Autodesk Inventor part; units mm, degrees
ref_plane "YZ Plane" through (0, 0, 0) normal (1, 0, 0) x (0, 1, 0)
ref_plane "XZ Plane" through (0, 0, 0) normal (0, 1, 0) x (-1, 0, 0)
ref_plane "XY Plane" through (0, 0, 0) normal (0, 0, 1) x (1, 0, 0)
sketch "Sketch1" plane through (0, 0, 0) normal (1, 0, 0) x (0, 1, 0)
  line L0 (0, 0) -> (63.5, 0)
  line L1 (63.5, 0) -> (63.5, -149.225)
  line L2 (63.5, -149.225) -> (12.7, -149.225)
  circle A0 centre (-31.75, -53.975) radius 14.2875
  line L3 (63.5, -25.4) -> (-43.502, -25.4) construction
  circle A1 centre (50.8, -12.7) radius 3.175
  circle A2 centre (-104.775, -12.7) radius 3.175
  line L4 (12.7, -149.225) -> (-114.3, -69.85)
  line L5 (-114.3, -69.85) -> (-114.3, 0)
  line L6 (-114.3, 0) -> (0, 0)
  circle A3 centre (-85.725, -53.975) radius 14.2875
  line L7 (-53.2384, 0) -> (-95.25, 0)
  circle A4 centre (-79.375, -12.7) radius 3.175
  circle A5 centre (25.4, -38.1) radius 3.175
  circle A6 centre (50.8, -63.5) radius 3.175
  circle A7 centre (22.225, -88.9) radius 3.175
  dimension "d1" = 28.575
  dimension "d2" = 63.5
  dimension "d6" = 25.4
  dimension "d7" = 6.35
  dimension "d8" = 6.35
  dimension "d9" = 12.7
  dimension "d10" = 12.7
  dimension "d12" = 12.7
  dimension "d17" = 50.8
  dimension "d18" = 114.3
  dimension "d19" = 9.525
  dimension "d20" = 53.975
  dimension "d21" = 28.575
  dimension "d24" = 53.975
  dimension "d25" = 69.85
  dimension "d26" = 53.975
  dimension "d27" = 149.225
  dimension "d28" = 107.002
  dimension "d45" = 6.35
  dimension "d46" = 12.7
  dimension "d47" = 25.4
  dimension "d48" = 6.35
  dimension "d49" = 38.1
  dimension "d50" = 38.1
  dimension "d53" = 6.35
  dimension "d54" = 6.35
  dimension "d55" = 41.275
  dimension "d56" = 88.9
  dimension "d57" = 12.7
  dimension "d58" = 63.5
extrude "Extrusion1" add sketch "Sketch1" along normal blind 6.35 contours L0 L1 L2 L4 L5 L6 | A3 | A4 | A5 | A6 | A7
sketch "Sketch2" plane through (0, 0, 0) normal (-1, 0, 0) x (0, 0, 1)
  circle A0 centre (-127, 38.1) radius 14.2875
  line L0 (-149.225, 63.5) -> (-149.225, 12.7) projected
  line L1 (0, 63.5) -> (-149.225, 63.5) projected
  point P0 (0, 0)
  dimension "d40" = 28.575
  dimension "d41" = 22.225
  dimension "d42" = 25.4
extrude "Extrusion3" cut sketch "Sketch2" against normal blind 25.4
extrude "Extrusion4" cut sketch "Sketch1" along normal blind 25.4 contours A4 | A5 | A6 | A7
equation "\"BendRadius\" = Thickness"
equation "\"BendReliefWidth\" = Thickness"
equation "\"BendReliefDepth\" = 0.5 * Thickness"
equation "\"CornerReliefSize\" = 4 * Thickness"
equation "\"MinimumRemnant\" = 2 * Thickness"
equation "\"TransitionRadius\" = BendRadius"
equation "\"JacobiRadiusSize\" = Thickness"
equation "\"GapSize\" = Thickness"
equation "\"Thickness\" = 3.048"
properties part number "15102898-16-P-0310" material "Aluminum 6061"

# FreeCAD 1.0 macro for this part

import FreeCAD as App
import Part
import Sketcher

V = App.Vector
Q = App.Units.Quantity


def add_polygon(sketch, points):
    """Adds a closed chain of lines whose ends are joined by coincident constraints."""
    first, n = sketch.GeometryCount, len(points)
    for a, b in zip(points, points[1:] + points[:1]):
        sketch.addGeometry(Part.LineSegment(App.Vector(*a, 0), App.Vector(*b, 0)), False)
    for i in range(n):
        sketch.addConstraint(Sketcher.Constraint("Coincident", first + i, 2, first + (i + 1) % n, 1))

doc = App.newDocument("Part")
body = doc.addObject("PartDesign::Body", "Body")

# Sketch on YZ plane
sketch1 = body.newObject("Sketcher::SketchObject", "Sketch")
sketch1.AttachmentSupport = (doc.getObject("YZ_Plane"), [""])
sketch1.MapMode = "FlatFace"
add_polygon(sketch1, [(63.5, 0), (-114.3, 0), (-114.3, -69.8), (12.7, -149.2), (63.5, -149.2)])  # lines 0-4
sketch1.addGeometry(Part.Circle(V(-31.8, -54, 0), V(0, 0, 1), 14.3), False)  # 5
sketch1.addGeometry(Part.Circle(V(-104.8, -12.7, 0), V(0, 0, 1), 3.2), False)  # 6
sketch1.addGeometry(Part.Circle(V(50.8, -12.7, 0), V(0, 0, 1), 3.2), False)  # 7
sketch1.addConstraint(Sketcher.Constraint("Horizontal", 0))
sketch1.addConstraint(Sketcher.Constraint("Vertical", 1))
sketch1.addConstraint(Sketcher.Constraint("Horizontal", 3))
sketch1.addConstraint(Sketcher.Constraint("Vertical", 4))
sketch1.addConstraint(Sketcher.Constraint("Equal", 6, 7))
sketch1.addConstraint(Sketcher.Constraint("PointOnObject", 0, 2, -1))
sketch1.addConstraint(Sketcher.Constraint("Horizontal", 6, 3, 7, 3))
sketch1.addConstraint(Sketcher.Constraint("Diameter", 6, Q("0.25 in")))
sketch1.addConstraint(Sketcher.Constraint("DistanceX", 3, 1, 3, 2, Q("2 in")))
sketch1.addConstraint(Sketcher.Constraint("Diameter", 5, Q("1.125 in")))
sketch1.addConstraint(Sketcher.Constraint("DistanceX", -1, 1, 7, 3, Q("2 in")))
sketch1.addConstraint(Sketcher.Constraint("DistanceY", 1, 2, 1, 1, Q("2.75 in")))
sketch1.addConstraint(Sketcher.Constraint("DistanceY", 6, 3, -1, 1, Q("0.5 in")))
sketch1.addConstraint(Sketcher.Constraint("DistanceX", 0, 2, -1, 1, Q("4.5 in")))
sketch1.addConstraint(Sketcher.Constraint("DistanceX", -1, 1, 2, 2, Q("0.5 in")))
sketch1.addConstraint(Sketcher.Constraint("DistanceY", 4, 1, 4, 2, Q("5.875 in")))
sketch1.addConstraint(Sketcher.Constraint("DistanceY", 5, 3, -1, 1, Q("2.125 in")))
sketch1.addConstraint(Sketcher.Constraint("DistanceX", 0, 2, 6, 3, Q("0.375 in")))
sketch1.addConstraint(Sketcher.Constraint("DistanceX", 5, 3, -1, 1, Q("1.25 in")))
pad1 = body.newObject("PartDesign::Pad", "Pad")
pad1.Profile = sketch1
pad1.Length = Q("0.25 in")

# Sketch on YZ plane
sketch2 = body.newObject("Sketcher::SketchObject", "Sketch001")
sketch2.AttachmentSupport = (doc.getObject("YZ_Plane"), [""])
sketch2.MapMode = "FlatFace"
sketch2.addGeometry(Part.Circle(V(38, -127, 0), V(0, 0, 1), 14), False)
sketch2.addConstraint(Sketcher.Constraint("Diameter", 0, Q("1.125 in")))
sketch2.addConstraint(Sketcher.Constraint("DistanceY", 0, 3, -1, 1, Q("5 in")))
sketch2.addConstraint(Sketcher.Constraint("DistanceX", -1, 1, 0, 3, Q("1.5 in")))
pocket1 = body.newObject("PartDesign::Pocket", "Pocket")
pocket1.Profile = sketch2
pocket1.Length = Q("1 in")
pocket1.Reversed = True

# Sketch on YZ plane
sketch3 = body.newObject("Sketcher::SketchObject", "Sketch002")
sketch3.AttachmentSupport = (doc.getObject("YZ_Plane"), [""])
sketch3.MapMode = "FlatFace"
sketch3.addGeometry(Part.Circle(V(-79.4, -12.7, 0), V(0, 0, 1), 3.2), False)
sketch3.addGeometry(Part.Circle(V(25.4, -38.1, 0), V(0, 0, 1), 3.2), False)
sketch3.addGeometry(Part.Circle(V(50.8, -63.5, 0), V(0, 0, 1), 3.2), False)
sketch3.addGeometry(Part.Circle(V(22.2, -88.9, 0), V(0, 0, 1), 3.2), False)
sketch3.addConstraint(Sketcher.Constraint("Equal", 0, 1))
sketch3.addConstraint(Sketcher.Constraint("Equal", 1, 2))
sketch3.addConstraint(Sketcher.Constraint("Equal", 2, 3))
sketch3.addConstraint(Sketcher.Constraint("Diameter", 0, Q("0.25 in")))
sketch3.addConstraint(Sketcher.Constraint("DistanceX", -1, 1, 1, 3, Q("1 in")))
sketch3.addConstraint(Sketcher.Constraint("DistanceX", -1, 1, 2, 3, Q("2 in")))
sketch3.addConstraint(Sketcher.Constraint("DistanceY", 1, 3, 0, 3, Q("1 in")))
sketch3.addConstraint(Sketcher.Constraint("DistanceY", 2, 3, 1, 3, Q("1 in")))
sketch3.addConstraint(Sketcher.Constraint("DistanceY", 3, 3, 2, 3, Q("1 in")))
sketch3.addConstraint(Sketcher.Constraint("DistanceY", 0, 3, -1, 1, Q("0.5 in")))
sketch3.addConstraint(Sketcher.Constraint("DistanceX", 3, 3, 2, 3, Q("1.125 in")))
sketch3.addConstraint(Sketcher.Constraint("DistanceX", 0, 3, 3, 3, Q("4 in")))
pocket2 = body.newObject("PartDesign::Pocket", "Pocket001")
pocket2.Profile = sketch3
pocket2.Length = Q("1 in")
pocket2.Reversed = True

doc.recompute()
